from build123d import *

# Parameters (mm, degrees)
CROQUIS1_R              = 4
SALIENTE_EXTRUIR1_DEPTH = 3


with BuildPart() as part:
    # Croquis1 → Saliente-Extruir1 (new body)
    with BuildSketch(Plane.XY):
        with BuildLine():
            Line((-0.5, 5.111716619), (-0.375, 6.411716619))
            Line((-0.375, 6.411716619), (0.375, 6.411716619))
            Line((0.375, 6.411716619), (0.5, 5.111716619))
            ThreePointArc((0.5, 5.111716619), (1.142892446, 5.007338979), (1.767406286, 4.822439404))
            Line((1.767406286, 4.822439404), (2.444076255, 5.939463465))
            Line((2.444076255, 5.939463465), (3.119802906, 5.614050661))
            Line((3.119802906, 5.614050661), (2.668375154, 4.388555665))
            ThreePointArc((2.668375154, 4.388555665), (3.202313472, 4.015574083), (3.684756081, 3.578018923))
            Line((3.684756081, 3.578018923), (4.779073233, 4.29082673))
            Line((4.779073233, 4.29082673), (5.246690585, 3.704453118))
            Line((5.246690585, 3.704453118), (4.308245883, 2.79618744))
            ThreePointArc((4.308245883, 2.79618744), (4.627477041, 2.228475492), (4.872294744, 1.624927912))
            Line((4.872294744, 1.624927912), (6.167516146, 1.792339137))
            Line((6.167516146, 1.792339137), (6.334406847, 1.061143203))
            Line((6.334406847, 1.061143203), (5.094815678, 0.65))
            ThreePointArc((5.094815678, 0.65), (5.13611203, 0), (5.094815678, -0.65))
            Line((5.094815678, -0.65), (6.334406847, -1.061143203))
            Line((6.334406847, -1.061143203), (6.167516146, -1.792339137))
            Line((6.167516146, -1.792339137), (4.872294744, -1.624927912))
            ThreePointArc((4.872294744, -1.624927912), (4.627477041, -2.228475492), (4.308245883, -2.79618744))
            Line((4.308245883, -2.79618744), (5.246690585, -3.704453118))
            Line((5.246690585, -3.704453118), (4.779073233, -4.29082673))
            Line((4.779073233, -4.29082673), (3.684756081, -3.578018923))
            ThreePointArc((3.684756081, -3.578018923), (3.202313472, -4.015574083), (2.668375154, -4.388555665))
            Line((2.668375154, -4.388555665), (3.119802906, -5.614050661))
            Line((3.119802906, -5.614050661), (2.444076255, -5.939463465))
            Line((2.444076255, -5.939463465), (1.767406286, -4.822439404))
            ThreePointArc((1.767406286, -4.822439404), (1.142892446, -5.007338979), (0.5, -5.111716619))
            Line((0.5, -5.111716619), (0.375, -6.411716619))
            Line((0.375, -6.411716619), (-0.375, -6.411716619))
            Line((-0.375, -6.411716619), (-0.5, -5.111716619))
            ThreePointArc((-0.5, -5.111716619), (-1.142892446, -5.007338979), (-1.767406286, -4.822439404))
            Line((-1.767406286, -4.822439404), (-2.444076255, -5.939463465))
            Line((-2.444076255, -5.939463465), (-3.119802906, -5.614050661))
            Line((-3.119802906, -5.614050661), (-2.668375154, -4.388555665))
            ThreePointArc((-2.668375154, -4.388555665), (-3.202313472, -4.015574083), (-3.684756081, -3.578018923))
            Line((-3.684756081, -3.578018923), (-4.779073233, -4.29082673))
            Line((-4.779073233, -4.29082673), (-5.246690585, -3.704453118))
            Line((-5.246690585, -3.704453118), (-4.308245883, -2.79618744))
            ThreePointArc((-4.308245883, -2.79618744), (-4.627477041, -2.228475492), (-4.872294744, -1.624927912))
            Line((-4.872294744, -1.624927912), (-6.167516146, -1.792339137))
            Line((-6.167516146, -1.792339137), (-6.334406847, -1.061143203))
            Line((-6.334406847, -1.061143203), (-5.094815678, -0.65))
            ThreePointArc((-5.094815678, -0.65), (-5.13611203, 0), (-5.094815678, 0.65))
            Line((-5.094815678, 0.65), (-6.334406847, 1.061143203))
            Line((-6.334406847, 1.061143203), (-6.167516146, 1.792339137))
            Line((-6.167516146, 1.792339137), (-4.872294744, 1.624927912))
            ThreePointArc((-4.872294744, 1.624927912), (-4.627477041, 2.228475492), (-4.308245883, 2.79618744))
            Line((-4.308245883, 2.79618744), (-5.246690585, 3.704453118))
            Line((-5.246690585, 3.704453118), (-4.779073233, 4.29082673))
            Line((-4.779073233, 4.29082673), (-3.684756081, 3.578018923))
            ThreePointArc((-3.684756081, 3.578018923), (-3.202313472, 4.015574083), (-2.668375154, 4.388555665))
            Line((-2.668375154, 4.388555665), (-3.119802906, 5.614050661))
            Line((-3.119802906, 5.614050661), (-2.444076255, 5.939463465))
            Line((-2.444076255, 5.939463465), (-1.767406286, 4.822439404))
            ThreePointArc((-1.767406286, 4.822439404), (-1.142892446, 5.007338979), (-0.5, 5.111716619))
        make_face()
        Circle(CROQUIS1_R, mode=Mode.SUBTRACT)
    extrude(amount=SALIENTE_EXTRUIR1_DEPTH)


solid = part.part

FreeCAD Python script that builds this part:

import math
import FreeCAD as App
import Part
import Sketcher
from FreeCAD import Vector

doc = App.newDocument("Part")
body = doc.addObject("PartDesign::Body", "Body")

sketch1 = body.newObject("Sketcher::SketchObject", "Sketch")
sketch1.AttachmentSupport = (doc.getObject("XY_Plane"), [""])
sketch1.MapMode = "FlatFace"
sketch1.addGeometry([
    Part.LineSegment(Vector(-0.4, 6.4, 0), Vector(-0.5, 5.1, 0)),
    Part.ArcOfCircle(Part.Circle(Vector(0, 0, 0), Vector(0, 0, 1), 5.1), math.radians(95.59), math.radians(110.13)),
    Part.LineSegment(Vector(-1.8, 4.8, 0), Vector(-2.4, 5.9, 0)),
    Part.LineSegment(Vector(-2.4, 5.9, 0), Vector(-3.1, 5.6, 0)),
    Part.LineSegment(Vector(-3.1, 5.6, 0), Vector(-2.7, 4.4, 0)),
    Part.ArcOfCircle(Part.Circle(Vector(0, 0, 0), Vector(0, 0, 1), 5.1), math.radians(121.3), math.radians(135.84)),
    Part.LineSegment(Vector(-3.7, 3.6, 0), Vector(-4.8, 4.3, 0)),
    Part.LineSegment(Vector(-4.8, 4.3, 0), Vector(-5.2, 3.7, 0)),
    Part.LineSegment(Vector(-5.2, 3.7, 0), Vector(-4.3, 2.8, 0)),
    Part.ArcOfCircle(Part.Circle(Vector(0, 0, 0), Vector(0, 0, 1), 5.1), math.radians(147.02), math.radians(161.56)),
    Part.LineSegment(Vector(-4.9, 1.6, 0), Vector(-6.2, 1.8, 0)),
    Part.LineSegment(Vector(-6.2, 1.8, 0), Vector(-6.3, 1.1, 0)),
    Part.LineSegment(Vector(-6.3, 1.1, 0), Vector(-5.1, 0.7, 0)),
    Part.ArcOfCircle(Part.Circle(Vector(0, 0, 0), Vector(0, 0, 1), 5.1), math.radians(172.73), math.radians(187.27)),
    Part.LineSegment(Vector(-5.1, -0.7, 0), Vector(-6.3, -1.1, 0)),
    Part.LineSegment(Vector(-6.3, -1.1, 0), Vector(-6.2, -1.8, 0)),
    Part.LineSegment(Vector(-6.2, -1.8, 0), Vector(-4.9, -1.6, 0)),
    Part.ArcOfCircle(Part.Circle(Vector(0, 0, 0), Vector(0, 0, 1), 5.1), math.radians(-161.56), math.radians(-147.02)),
    Part.LineSegment(Vector(-4.3, -2.8, 0), Vector(-5.2, -3.7, 0)),
    Part.LineSegment(Vector(-5.2, -3.7, 0), Vector(-4.8, -4.3, 0)),
    Part.LineSegment(Vector(-4.8, -4.3, 0), Vector(-3.7, -3.6, 0)),
    Part.ArcOfCircle(Part.Circle(Vector(0, 0, 0), Vector(0, 0, 1), 5.1), math.radians(-135.84), math.radians(-121.3)),
    Part.LineSegment(Vector(-2.7, -4.4, 0), Vector(-3.1, -5.6, 0)),
    Part.LineSegment(Vector(-3.1, -5.6, 0), Vector(-2.4, -5.9, 0)),
    Part.LineSegment(Vector(-2.4, -5.9, 0), Vector(-1.8, -4.8, 0)),
    Part.ArcOfCircle(Part.Circle(Vector(0, 0, 0), Vector(0, 0, 1), 5.1), math.radians(-110.13), math.radians(-95.59)),
    Part.LineSegment(Vector(-0.5, -5.1, 0), Vector(-0.4, -6.4, 0)),
    Part.LineSegment(Vector(-0.4, -6.4, 0), Vector(0.4, -6.4, 0)),
    Part.LineSegment(Vector(0.4, -6.4, 0), Vector(0.5, -5.1, 0)),
    Part.ArcOfCircle(Part.Circle(Vector(0, 0, 0), Vector(0, 0, 1), 5.1), math.radians(-84.41), math.radians(-69.87)),
    Part.LineSegment(Vector(1.8, -4.8, 0), Vector(2.4, -5.9, 0)),
    Part.LineSegment(Vector(2.4, -5.9, 0), Vector(3.1, -5.6, 0)),
    Part.LineSegment(Vector(3.1, -5.6, 0), Vector(2.7, -4.4, 0)),
    Part.ArcOfCircle(Part.Circle(Vector(0, 0, 0), Vector(0, 0, 1), 5.1), math.radians(-58.7), math.radians(-44.16)),
    Part.LineSegment(Vector(3.7, -3.6, 0), Vector(4.8, -4.3, 0)),
    Part.LineSegment(Vector(4.8, -4.3, 0), Vector(5.2, -3.7, 0)),
    Part.LineSegment(Vector(5.2, -3.7, 0), Vector(4.3, -2.8, 0)),
    Part.ArcOfCircle(Part.Circle(Vector(0, 0, 0), Vector(0, 0, 1), 5.1), math.radians(-32.98), math.radians(-18.44)),
    Part.LineSegment(Vector(4.9, -1.6, 0), Vector(6.2, -1.8, 0)),
    Part.LineSegment(Vector(6.2, -1.8, 0), Vector(6.3, -1.1, 0)),
    Part.LineSegment(Vector(6.3, -1.1, 0), Vector(5.1, -0.7, 0)),
    Part.ArcOfCircle(Part.Circle(Vector(0, 0, 0), Vector(0, 0, 1), 5.1), math.radians(-7.27), math.radians(7.27)),
    Part.LineSegment(Vector(5.1, 0.7, 0), Vector(6.3, 1.1, 0)),
    Part.LineSegment(Vector(6.3, 1.1, 0), Vector(6.2, 1.8, 0)),
    Part.LineSegment(Vector(6.2, 1.8, 0), Vector(4.9, 1.6, 0)),
    Part.ArcOfCircle(Part.Circle(Vector(0, 0, 0), Vector(0, 0, 1), 5.1), math.radians(18.44), math.radians(32.98)),
    Part.LineSegment(Vector(4.3, 2.8, 0), Vector(5.2, 3.7, 0)),
    Part.LineSegment(Vector(5.2, 3.7, 0), Vector(4.8, 4.3, 0)),
    Part.LineSegment(Vector(4.8, 4.3, 0), Vector(3.7, 3.6, 0)),
    Part.ArcOfCircle(Part.Circle(Vector(0, 0, 0), Vector(0, 0, 1), 5.1), math.radians(44.16), math.radians(58.7)),
    Part.LineSegment(Vector(2.7, 4.4, 0), Vector(3.1, 5.6, 0)),
    Part.LineSegment(Vector(3.1, 5.6, 0), Vector(2.4, 5.9, 0)),
    Part.LineSegment(Vector(2.4, 5.9, 0), Vector(1.8, 4.8, 0)),
    Part.ArcOfCircle(Part.Circle(Vector(0, 0, 0), Vector(0, 0, 1), 5.1), math.radians(69.87), math.radians(84.41)),
    Part.LineSegment(Vector(0.5, 5.1, 0), Vector(0.4, 6.4, 0)),
    Part.LineSegment(Vector(0.4, 6.4, 0), Vector(-0.4, 6.4, 0)),
    Part.Circle(Vector(0, 0, 0), Vector(0, 0, 1), 4),
], False)
sketch1.addConstraint([
    Sketcher.Constraint("Coincident", 0, 2, 1, 1),
    Sketcher.Constraint("Coincident", 1, 2, 2, 1),
    Sketcher.Constraint("Coincident", 2, 2, 3, 1),
    Sketcher.Constraint("Coincident", 3, 2, 4, 1),
    Sketcher.Constraint("Coincident", 4, 2, 5, 1),
    Sketcher.Constraint("Coincident", 5, 2, 6, 1),
    Sketcher.Constraint("Coincident", 6, 2, 7, 1),
    Sketcher.Constraint("Coincident", 7, 2, 8, 1),
    Sketcher.Constraint("Coincident", 8, 2, 9, 1),
    Sketcher.Constraint("Coincident", 9, 2, 10, 1),
    Sketcher.Constraint("Coincident", 10, 2, 11, 1),
    Sketcher.Constraint("Coincident", 11, 2, 12, 1),
    Sketcher.Constraint("Coincident", 12, 2, 13, 1),
    Sketcher.Constraint("Coincident", 13, 2, 14, 1),
    Sketcher.Constraint("Coincident", 14, 2, 15, 1),
    Sketcher.Constraint("Coincident", 15, 2, 16, 1),
    Sketcher.Constraint("Coincident", 16, 2, 17, 1),
    Sketcher.Constraint("Coincident", 17, 2, 18, 1),
    Sketcher.Constraint("Coincident", 18, 2, 19, 1),
    Sketcher.Constraint("Coincident", 19, 2, 20, 1),
    Sketcher.Constraint("Coincident", 20, 2, 21, 1),
    Sketcher.Constraint("Coincident", 21, 2, 22, 1),
    Sketcher.Constraint("Coincident", 22, 2, 23, 1),
    Sketcher.Constraint("Coincident", 23, 2, 24, 1),
    Sketcher.Constraint("Coincident", 24, 2, 25, 1),
    Sketcher.Constraint("Coincident", 25, 2, 26, 1),
    Sketcher.Constraint("Coincident", 26, 2, 27, 1),
    Sketcher.Constraint("Coincident", 27, 2, 28, 1),
    Sketcher.Constraint("Coincident", 28, 2, 29, 1),
    Sketcher.Constraint("Coincident", 29, 2, 30, 1),
    Sketcher.Constraint("Coincident", 30, 2, 31, 1),
    Sketcher.Constraint("Coincident", 31, 2, 32, 1),
    Sketcher.Constraint("Coincident", 32, 2, 33, 1),
    Sketcher.Constraint("Coincident", 33, 2, 34, 1),
    Sketcher.Constraint("Coincident", 34, 2, 35, 1),
    Sketcher.Constraint("Coincident", 35, 2, 36, 1),
    Sketcher.Constraint("Coincident", 36, 2, 37, 1),
    Sketcher.Constraint("Coincident", 37, 2, 38, 1),
    Sketcher.Constraint("Coincident", 38, 2, 39, 1),
    Sketcher.Constraint("Coincident", 39, 2, 40, 1),
    Sketcher.Constraint("Coincident", 40, 2, 41, 1),
    Sketcher.Constraint("Coincident", 41, 2, 42, 1),
    Sketcher.Constraint("Coincident", 42, 2, 43, 1),
    Sketcher.Constraint("Coincident", 43, 2, 44, 1),
    Sketcher.Constraint("Coincident", 44, 2, 45, 1),
    Sketcher.Constraint("Coincident", 45, 2, 46, 1),
    Sketcher.Constraint("Coincident", 46, 2, 47, 1),
    Sketcher.Constraint("Coincident", 47, 2, 48, 1),
    Sketcher.Constraint("Coincident", 48, 2, 49, 1),
    Sketcher.Constraint("Coincident", 49, 2, 50, 1),
    Sketcher.Constraint("Coincident", 50, 2, 51, 1),
    Sketcher.Constraint("Coincident", 51, 2, 52, 1),
    Sketcher.Constraint("Coincident", 52, 2, 53, 1),
    Sketcher.Constraint("Coincident", 53, 2, 54, 1),
    Sketcher.Constraint("Coincident", 54, 2, 55, 1),
    Sketcher.Constraint("Coincident", 55, 2, 0, 1),
    Sketcher.Constraint("Horizontal", 27),
    Sketcher.Constraint("Horizontal", 55),
    Sketcher.Constraint("Coincident", 1, 3, -1, 1),
    Sketcher.Constraint("Coincident", 5, 3, -1, 1),
    Sketcher.Constraint("Coincident", 9, 3, -1, 1),
    Sketcher.Constraint("Coincident", 13, 3, -1, 1),
    Sketcher.Constraint("Coincident", 17, 3, -1, 1),
    Sketcher.Constraint("Coincident", 21, 3, -1, 1),
    Sketcher.Constraint("Coincident", 25, 3, -1, 1),
    Sketcher.Constraint("Coincident", 29, 3, -1, 1),
    Sketcher.Constraint("Coincident", 33, 3, -1, 1),
    Sketcher.Constraint("Coincident", 37, 3, -1, 1),
    Sketcher.Constraint("Coincident", 41, 3, -1, 1),
    Sketcher.Constraint("Coincident", 45, 3, -1, 1),
    Sketcher.Constraint("Coincident", 49, 3, -1, 1),
    Sketcher.Constraint("Coincident", 53, 3, -1, 1),
    Sketcher.Constraint("Coincident", 56, 3, -1, 1),
    Sketcher.Constraint("Equal", 1, 5),
    Sketcher.Constraint("Equal", 5, 9),
    Sketcher.Constraint("Equal", 9, 13),
    Sketcher.Constraint("Equal", 13, 17),
    Sketcher.Constraint("Equal", 17, 21),
    Sketcher.Constraint("Equal", 21, 25),
    Sketcher.Constraint("Equal", 25, 29),
    Sketcher.Constraint("Equal", 29, 33),
    Sketcher.Constraint("Equal", 33, 37),
    Sketcher.Constraint("Equal", 37, 41),
    Sketcher.Constraint("Equal", 41, 45),
    Sketcher.Constraint("Equal", 45, 49),
    Sketcher.Constraint("Equal", 49, 53),
    Sketcher.Constraint("Symmetric", 2, 2, 30, 2, -1, 1),
    Sketcher.Constraint("Symmetric", 3, 2, 31, 2, -1, 1),
    Sketcher.Constraint("Symmetric", 6, 2, 34, 2, -1, 1),
    Sketcher.Constraint("Symmetric", 7, 2, 35, 2, -1, 1),
    Sketcher.Constraint("Symmetric", 10, 2, 38, 2, -1, 1),
    Sketcher.Constraint("Symmetric", 11, 2, 39, 2, -1, 1),
    Sketcher.Constraint("Symmetric", 14, 2, 42, 2, -1, 1),
    Sketcher.Constraint("Symmetric", 15, 2, 43, 2, -1, 1),
    Sketcher.Constraint("Symmetric", 18, 2, 46, 2, -1, 1),
    Sketcher.Constraint("Symmetric", 19, 2, 47, 2, -1, 1),
    Sketcher.Constraint("Symmetric", 22, 2, 50, 2, -1, 1),
    Sketcher.Constraint("Symmetric", 23, 2, 51, 2, -1, 1),
    Sketcher.Constraint("Symmetric", 26, 2, 54, 2, -1, 1),
    Sketcher.Constraint("Symmetric", 23, 2, 30, 2, -2),
    Sketcher.Constraint("Symmetric", 22, 2, 31, 2, -2),
    Sketcher.Constraint("Symmetric", 19, 2, 34, 2, -2),
    Sketcher.Constraint("Symmetric", 18, 2, 35, 2, -2),
    Sketcher.Constraint("Symmetric", 15, 2, 38, 2, -2),
    Sketcher.Constraint("Symmetric", 14, 2, 39, 2, -2),
    Sketcher.Constraint("Parallel", 0, 28),
    Sketcher.Constraint("Parallel", 2, 30),
    Sketcher.Constraint("Parallel", 4, 32),
    Sketcher.Constraint("Parallel", 6, 34),
    Sketcher.Constraint("Parallel", 8, 36),
    Sketcher.Constraint("Parallel", 10, 38),
    Sketcher.Constraint("Parallel", 12, 40),
    Sketcher.Constraint("Parallel", 14, 42),
    Sketcher.Constraint("Parallel", 16, 44),
    Sketcher.Constraint("Parallel", 18, 46),
    Sketcher.Constraint("Parallel", 20, 48),
    Sketcher.Constraint("Parallel", 22, 50),
    Sketcher.Constraint("Parallel", 24, 52),
    Sketcher.Constraint("Parallel", 26, 54),
    Sketcher.Constraint("Horizontal", 25, 2, 28, 2),
    Sketcher.Constraint("Horizontal", 24, 2, 29, 2),
    Sketcher.Constraint("Horizontal", 21, 2, 32, 2),
    Sketcher.Constraint("Horizontal", 20, 2, 33, 2),
    Sketcher.Constraint("Horizontal", 17, 2, 36, 2),
    Sketcher.Constraint("Horizontal", 16, 2, 37, 2),
    Sketcher.Constraint("Horizontal", 13, 2, 40, 2),
    Sketcher.Constraint("Horizontal", 0, 2, 53, 2),
    Sketcher.Constraint("Vertical", 27, 2, 54, 2),
    Sketcher.Constraint("Equal", 0, 2),
    Sketcher.Constraint("Equal", 2, 4),
    Sketcher.Constraint("Equal", 4, 6),
    Sketcher.Constraint("Equal", 3, 7),
    Sketcher.Constraint("Equal", 6, 8),
    Sketcher.Constraint("Equal", 8, 10),
    Sketcher.Constraint("Equal", 7, 11),
    Sketcher.Constraint("Equal", 10, 12),
    Sketcher.Constraint("Diameter", 56, 8.0),
    Sketcher.Constraint("DistanceX", 27, 1, 27, 2, 0.75),
    Sketcher.Constraint("DistanceX", 0, 2, -1, 1, 0.5),
    Sketcher.Constraint("Distance", 3, 0.75),
    Sketcher.Constraint("DistanceY", -1, 1, 12, 2, 0.65),
    Sketcher.Constraint("Radius", 1, 5.136112),
    Sketcher.Constraint("DistanceY", -1, 1, 1, 2, 4.822439),
    Sketcher.Constraint("DistanceY", -1, 1, 3, 2, 5.614051),
    Sketcher.Constraint("DistanceY", -1, 1, 5, 2, 3.578019),
    Sketcher.Constraint("DistanceX", 7, 2, -1, 1, 5.246691),
    Sketcher.Constraint("DistanceY", -1, 1, 10, 2, 1.792339),
    Sketcher.Constraint("Distance", 0, 1.305996),
    Sketcher.Constraint("DistanceX", 2, 2, -1, 1, 2.444076),
    Sketcher.Constraint("DistanceX", 6, 2, -1, 1, 4.779073),
    Sketcher.Constraint("DistanceX", 9, 2, -1, 1, 4.872295),
])
pad1 = body.newObject("PartDesign::Pad", "Pad")
pad1.Profile = sketch1
pad1.Length = 3

doc.recompute()
